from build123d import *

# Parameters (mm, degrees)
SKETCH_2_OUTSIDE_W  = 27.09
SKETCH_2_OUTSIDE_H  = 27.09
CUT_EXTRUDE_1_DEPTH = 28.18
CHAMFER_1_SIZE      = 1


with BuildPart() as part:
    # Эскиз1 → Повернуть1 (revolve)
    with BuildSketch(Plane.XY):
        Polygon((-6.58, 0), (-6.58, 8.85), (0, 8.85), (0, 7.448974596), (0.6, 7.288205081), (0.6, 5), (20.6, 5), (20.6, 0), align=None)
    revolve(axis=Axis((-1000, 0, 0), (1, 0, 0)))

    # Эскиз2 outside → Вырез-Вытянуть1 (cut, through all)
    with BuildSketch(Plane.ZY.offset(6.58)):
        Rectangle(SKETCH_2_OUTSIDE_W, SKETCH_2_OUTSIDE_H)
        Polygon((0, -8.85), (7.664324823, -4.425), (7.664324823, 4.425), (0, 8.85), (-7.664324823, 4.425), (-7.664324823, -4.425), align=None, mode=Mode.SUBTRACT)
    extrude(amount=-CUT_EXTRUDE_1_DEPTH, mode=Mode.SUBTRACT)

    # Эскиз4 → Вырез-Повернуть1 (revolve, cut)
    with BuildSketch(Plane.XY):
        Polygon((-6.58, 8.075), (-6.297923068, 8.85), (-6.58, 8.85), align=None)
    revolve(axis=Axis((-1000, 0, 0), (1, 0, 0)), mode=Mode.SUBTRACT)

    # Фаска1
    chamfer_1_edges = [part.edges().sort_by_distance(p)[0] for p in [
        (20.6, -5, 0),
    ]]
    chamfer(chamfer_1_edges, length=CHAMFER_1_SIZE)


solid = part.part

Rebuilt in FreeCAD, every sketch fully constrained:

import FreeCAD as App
import Part
import Sketcher
from FreeCAD import Vector
Q = App.Units.Quantity


def edges_at(feature, points):
    """Names of the edges that pass closest to the given points."""
    edges = feature.Shape.Edges
    near = lambda p: min(range(len(edges)), key=lambda i: edges[i].distToShape(Part.Vertex(*p))[0])
    return sorted({f"Edge{near(p) + 1}" for p in points})

doc = App.newDocument("Part")
body = doc.addObject("PartDesign::Body", "Body")

# Sketch on XY plane
sketch1 = doc.addObject("Sketcher::SketchObject", "Sketch")
body.addObject(sketch1)
sketch1.AttachmentSupport = (doc.XY_Plane, [""])
sketch1.MapMode = "FlatFace"
sketch1.addGeometry(Part.LineSegment(Vector(-6.6, 8.8, 0), Vector(-6.6, 0, 0)), False)
sketch1.addGeometry(Part.LineSegment(Vector(-6.6, 0, 0), Vector(20.6, 0, 0)), False)
sketch1.addGeometry(Part.LineSegment(Vector(20.6, 0, 0), Vector(20.6, 5, 0)), False)
sketch1.addGeometry(Part.LineSegment(Vector(20.6, 5, 0), Vector(0.6, 5, 0)), False)
sketch1.addGeometry(Part.LineSegment(Vector(0.6, 5, 0), Vector(0.6, 7.3, 0)), False)
sketch1.addGeometry(Part.LineSegment(Vector(0.6, 7.3, 0), Vector(0, 7.4, 0)), False)
sketch1.addGeometry(Part.LineSegment(Vector(0, 7.4, 0), Vector(0, 8.8, 0)), False)
sketch1.addGeometry(Part.LineSegment(Vector(0, 8.8, 0), Vector(-6.6, 8.8, 0)), False)
sketch1.addConstraint(Sketcher.Constraint("Coincident", 0, 2, 1, 1))
sketch1.addConstraint(Sketcher.Constraint("Coincident", 1, 2, 2, 1))
sketch1.addConstraint(Sketcher.Constraint("Coincident", 2, 2, 3, 1))
sketch1.addConstraint(Sketcher.Constraint("Coincident", 3, 2, 4, 1))
sketch1.addConstraint(Sketcher.Constraint("Coincident", 4, 2, 5, 1))
sketch1.addConstraint(Sketcher.Constraint("Coincident", 5, 2, 6, 1))
sketch1.addConstraint(Sketcher.Constraint("Coincident", 6, 2, 7, 1))
sketch1.addConstraint(Sketcher.Constraint("Coincident", 7, 2, 0, 1))
sketch1.addConstraint(Sketcher.Constraint("Vertical", 0))
sketch1.addConstraint(Sketcher.Constraint("Horizontal", 1))
sketch1.addConstraint(Sketcher.Constraint("Vertical", 2))
sketch1.addConstraint(Sketcher.Constraint("Horizontal", 3))
sketch1.addConstraint(Sketcher.Constraint("Vertical", 4))
sketch1.addConstraint(Sketcher.Constraint("Vertical", 6))
sketch1.addConstraint(Sketcher.Constraint("Horizontal", 7))
sketch1.addConstraint(Sketcher.Constraint("PointOnObject", 0, 2, -1))
sketch1.addConstraint(Sketcher.Constraint("PointOnObject", 5, 2, -2))
sketch1.addConstraint(Sketcher.Constraint("DistanceX", 3, 2, 3, 1, 20.0))
sketch1.addConstraint(Sketcher.Constraint("DistanceY", 2, 1, 2, 2, 5.0))
sketch1.addConstraint(Sketcher.Constraint("Angle", 5, Q("165 deg")))
sketch1.addConstraint(Sketcher.Constraint("DistanceX", 1, 1, 1, 2, 27.18))
sketch1.addConstraint(Sketcher.Constraint("DistanceX", 7, 2, 7, 1, 6.58))
sketch1.addConstraint(Sketcher.Constraint("DistanceY", 0, 2, 0, 1, 8.85))
sketch1.addConstraint(Sketcher.Constraint("DistanceY", 4, 1, 4, 2, 2.288205))
revolution = doc.addObject("PartDesign::Revolution", "Revolution")
body.addObject(revolution)
revolution.Profile = sketch1
revolution.ReferenceAxis = (sketch1, ["H_Axis"])
revolution.Angle = 360

# Sketch on YZ plane
sketch2 = doc.addObject("Sketcher::SketchObject", "Sketch001")
body.addObject(sketch2)
sketch2.AttachmentSupport = (doc.YZ_Plane, [""])
sketch2.MapMode = "FlatFace"
sketch2.AttachmentOffset = App.Placement(Vector(0, 0, -6.58), App.Rotation())
sketch2.addGeometry(Part.LineSegment(Vector(14, -14, 0), Vector(-14, -14, 0)), False)
sketch2.addGeometry(Part.LineSegment(Vector(-14, -14, 0), Vector(-14, 14, 0)), False)
sketch2.addGeometry(Part.LineSegment(Vector(-14, 14, 0), Vector(14, 14, 0)), False)
sketch2.addGeometry(Part.LineSegment(Vector(14, 14, 0), Vector(14, -14, 0)), False)
sketch2.addGeometry(Part.LineSegment(Vector(-4, 8, 0), Vector(-9, 0, 0)), False)
sketch2.addGeometry(Part.LineSegment(Vector(-9, 0, 0), Vector(-4, -8, 0)), False)
sketch2.addGeometry(Part.LineSegment(Vector(-4, -8, 0), Vector(4, -8, 0)), False)
sketch2.addGeometry(Part.LineSegment(Vector(4, -8, 0), Vector(9, 0, 0)), False)
sketch2.addGeometry(Part.LineSegment(Vector(9, 0, 0), Vector(4, 8, 0)), False)
sketch2.addGeometry(Part.LineSegment(Vector(4, 8, 0), Vector(-4, 8, 0)), False)
sketch2.addConstraint(Sketcher.Constraint("Coincident", 0, 2, 1, 1))
sketch2.addConstraint(Sketcher.Constraint("Coincident", 1, 2, 2, 1))
sketch2.addConstraint(Sketcher.Constraint("Coincident", 2, 2, 3, 1))
sketch2.addConstraint(Sketcher.Constraint("Coincident", 3, 2, 0, 1))
sketch2.addConstraint(Sketcher.Constraint("Coincident", 4, 2, 5, 1))
sketch2.addConstraint(Sketcher.Constraint("Coincident", 5, 2, 6, 1))
sketch2.addConstraint(Sketcher.Constraint("Coincident", 6, 2, 7, 1))
sketch2.addConstraint(Sketcher.Constraint("Coincident", 7, 2, 8, 1))
sketch2.addConstraint(Sketcher.Constraint("Coincident", 8, 2, 9, 1))
sketch2.addConstraint(Sketcher.Constraint("Coincident", 9, 2, 4, 1))
sketch2.addConstraint(Sketcher.Constraint("Horizontal", 0))
sketch2.addConstraint(Sketcher.Constraint("Vertical", 1))
sketch2.addConstraint(Sketcher.Constraint("Horizontal", 2))
sketch2.addConstraint(Sketcher.Constraint("Vertical", 3))
sketch2.addConstraint(Sketcher.Constraint("Horizontal", 6))
sketch2.addConstraint(Sketcher.Constraint("Horizontal", 9))
sketch2.addConstraint(Sketcher.Constraint("Symmetric", 0, 2, 2, 2, -1, 1))
sketch2.addConstraint(Sketcher.Constraint("Symmetric", 4, 2, 7, 2, -1, 1))
sketch2.addConstraint(Sketcher.Constraint("Symmetric", 5, 2, 8, 2, -1, 1))
sketch2.addConstraint(Sketcher.Constraint("PointOnObject", 4, 2, -1))
sketch2.addConstraint(Sketcher.Constraint("Parallel", 4, 7))
sketch2.addConstraint(Sketcher.Constraint("Vertical", 6, 2, 8, 2))
sketch2.addConstraint(Sketcher.Constraint("Equal", 2, 1))
sketch2.addConstraint(Sketcher.Constraint("Angle", 4, Q("-120 deg")))
sketch2.addConstraint(Sketcher.Constraint("DistanceX", 0, 2, 0, 1, 27.09))
sketch2.addConstraint(Sketcher.Constraint("DistanceX", 6, 1, 6, 2, 8.85))
sketch2.addConstraint(Sketcher.Constraint("DistanceX", 4, 2, 7, 2, 17.7))
pocket1 = doc.addObject("PartDesign::Pocket", "Pocket")
body.addObject(pocket1)
pocket1.Profile = sketch2
pocket1.Type = "ThroughAll"
pocket1.Reversed = True

# Sketch on XY plane
sketch3 = doc.addObject("Sketcher::SketchObject", "Sketch002")
body.addObject(sketch3)
sketch3.AttachmentSupport = (doc.XY_Plane, [""])
sketch3.MapMode = "FlatFace"
sketch3.addGeometry(Part.LineSegment(Vector(-6.58, 8.07, 0), Vector(-6.3, 8.85, 0)), False)
sketch3.addGeometry(Part.LineSegment(Vector(-6.3, 8.85, 0), Vector(-6.58, 8.85, 0)), False)
sketch3.addGeometry(Part.LineSegment(Vector(-6.58, 8.85, 0), Vector(-6.58, 8.07, 0)), False)
sketch3.addConstraint(Sketcher.Constraint("Coincident", 0, 2, 1, 1))
sketch3.addConstraint(Sketcher.Constraint("Coincident", 1, 2, 2, 1))
sketch3.addConstraint(Sketcher.Constraint("Coincident", 2, 2, 0, 1))
sketch3.addConstraint(Sketcher.Constraint("Horizontal", 1))
sketch3.addConstraint(Sketcher.Constraint("Vertical", 2))
sketch3.addConstraint(Sketcher.Constraint("Angle", 0, Q("70 deg")))
sketch3.addConstraint(Sketcher.Constraint("DistanceY", 2, 2, 2, 1, 0.775))
sketch3.addConstraint(Sketcher.Constraint("DistanceY", -1, 1, 0, 2, 8.85))
sketch3.addConstraint(Sketcher.Constraint("DistanceX", 1, 2, -1, 1, 6.58))
groove = doc.addObject("PartDesign::Groove", "Groove")
body.addObject(groove)
groove.Profile = sketch3
groove.ReferenceAxis = (sketch3, ["H_Axis"])
groove.Angle = 360
doc.recompute()

chamfer = doc.addObject("PartDesign::Chamfer", "Chamfer")
body.addObject(chamfer)
chamfer.Base = (groove, edges_at(groove, [(20.6, -5, 0)]))
chamfer.Size = 1

doc.recompute()
